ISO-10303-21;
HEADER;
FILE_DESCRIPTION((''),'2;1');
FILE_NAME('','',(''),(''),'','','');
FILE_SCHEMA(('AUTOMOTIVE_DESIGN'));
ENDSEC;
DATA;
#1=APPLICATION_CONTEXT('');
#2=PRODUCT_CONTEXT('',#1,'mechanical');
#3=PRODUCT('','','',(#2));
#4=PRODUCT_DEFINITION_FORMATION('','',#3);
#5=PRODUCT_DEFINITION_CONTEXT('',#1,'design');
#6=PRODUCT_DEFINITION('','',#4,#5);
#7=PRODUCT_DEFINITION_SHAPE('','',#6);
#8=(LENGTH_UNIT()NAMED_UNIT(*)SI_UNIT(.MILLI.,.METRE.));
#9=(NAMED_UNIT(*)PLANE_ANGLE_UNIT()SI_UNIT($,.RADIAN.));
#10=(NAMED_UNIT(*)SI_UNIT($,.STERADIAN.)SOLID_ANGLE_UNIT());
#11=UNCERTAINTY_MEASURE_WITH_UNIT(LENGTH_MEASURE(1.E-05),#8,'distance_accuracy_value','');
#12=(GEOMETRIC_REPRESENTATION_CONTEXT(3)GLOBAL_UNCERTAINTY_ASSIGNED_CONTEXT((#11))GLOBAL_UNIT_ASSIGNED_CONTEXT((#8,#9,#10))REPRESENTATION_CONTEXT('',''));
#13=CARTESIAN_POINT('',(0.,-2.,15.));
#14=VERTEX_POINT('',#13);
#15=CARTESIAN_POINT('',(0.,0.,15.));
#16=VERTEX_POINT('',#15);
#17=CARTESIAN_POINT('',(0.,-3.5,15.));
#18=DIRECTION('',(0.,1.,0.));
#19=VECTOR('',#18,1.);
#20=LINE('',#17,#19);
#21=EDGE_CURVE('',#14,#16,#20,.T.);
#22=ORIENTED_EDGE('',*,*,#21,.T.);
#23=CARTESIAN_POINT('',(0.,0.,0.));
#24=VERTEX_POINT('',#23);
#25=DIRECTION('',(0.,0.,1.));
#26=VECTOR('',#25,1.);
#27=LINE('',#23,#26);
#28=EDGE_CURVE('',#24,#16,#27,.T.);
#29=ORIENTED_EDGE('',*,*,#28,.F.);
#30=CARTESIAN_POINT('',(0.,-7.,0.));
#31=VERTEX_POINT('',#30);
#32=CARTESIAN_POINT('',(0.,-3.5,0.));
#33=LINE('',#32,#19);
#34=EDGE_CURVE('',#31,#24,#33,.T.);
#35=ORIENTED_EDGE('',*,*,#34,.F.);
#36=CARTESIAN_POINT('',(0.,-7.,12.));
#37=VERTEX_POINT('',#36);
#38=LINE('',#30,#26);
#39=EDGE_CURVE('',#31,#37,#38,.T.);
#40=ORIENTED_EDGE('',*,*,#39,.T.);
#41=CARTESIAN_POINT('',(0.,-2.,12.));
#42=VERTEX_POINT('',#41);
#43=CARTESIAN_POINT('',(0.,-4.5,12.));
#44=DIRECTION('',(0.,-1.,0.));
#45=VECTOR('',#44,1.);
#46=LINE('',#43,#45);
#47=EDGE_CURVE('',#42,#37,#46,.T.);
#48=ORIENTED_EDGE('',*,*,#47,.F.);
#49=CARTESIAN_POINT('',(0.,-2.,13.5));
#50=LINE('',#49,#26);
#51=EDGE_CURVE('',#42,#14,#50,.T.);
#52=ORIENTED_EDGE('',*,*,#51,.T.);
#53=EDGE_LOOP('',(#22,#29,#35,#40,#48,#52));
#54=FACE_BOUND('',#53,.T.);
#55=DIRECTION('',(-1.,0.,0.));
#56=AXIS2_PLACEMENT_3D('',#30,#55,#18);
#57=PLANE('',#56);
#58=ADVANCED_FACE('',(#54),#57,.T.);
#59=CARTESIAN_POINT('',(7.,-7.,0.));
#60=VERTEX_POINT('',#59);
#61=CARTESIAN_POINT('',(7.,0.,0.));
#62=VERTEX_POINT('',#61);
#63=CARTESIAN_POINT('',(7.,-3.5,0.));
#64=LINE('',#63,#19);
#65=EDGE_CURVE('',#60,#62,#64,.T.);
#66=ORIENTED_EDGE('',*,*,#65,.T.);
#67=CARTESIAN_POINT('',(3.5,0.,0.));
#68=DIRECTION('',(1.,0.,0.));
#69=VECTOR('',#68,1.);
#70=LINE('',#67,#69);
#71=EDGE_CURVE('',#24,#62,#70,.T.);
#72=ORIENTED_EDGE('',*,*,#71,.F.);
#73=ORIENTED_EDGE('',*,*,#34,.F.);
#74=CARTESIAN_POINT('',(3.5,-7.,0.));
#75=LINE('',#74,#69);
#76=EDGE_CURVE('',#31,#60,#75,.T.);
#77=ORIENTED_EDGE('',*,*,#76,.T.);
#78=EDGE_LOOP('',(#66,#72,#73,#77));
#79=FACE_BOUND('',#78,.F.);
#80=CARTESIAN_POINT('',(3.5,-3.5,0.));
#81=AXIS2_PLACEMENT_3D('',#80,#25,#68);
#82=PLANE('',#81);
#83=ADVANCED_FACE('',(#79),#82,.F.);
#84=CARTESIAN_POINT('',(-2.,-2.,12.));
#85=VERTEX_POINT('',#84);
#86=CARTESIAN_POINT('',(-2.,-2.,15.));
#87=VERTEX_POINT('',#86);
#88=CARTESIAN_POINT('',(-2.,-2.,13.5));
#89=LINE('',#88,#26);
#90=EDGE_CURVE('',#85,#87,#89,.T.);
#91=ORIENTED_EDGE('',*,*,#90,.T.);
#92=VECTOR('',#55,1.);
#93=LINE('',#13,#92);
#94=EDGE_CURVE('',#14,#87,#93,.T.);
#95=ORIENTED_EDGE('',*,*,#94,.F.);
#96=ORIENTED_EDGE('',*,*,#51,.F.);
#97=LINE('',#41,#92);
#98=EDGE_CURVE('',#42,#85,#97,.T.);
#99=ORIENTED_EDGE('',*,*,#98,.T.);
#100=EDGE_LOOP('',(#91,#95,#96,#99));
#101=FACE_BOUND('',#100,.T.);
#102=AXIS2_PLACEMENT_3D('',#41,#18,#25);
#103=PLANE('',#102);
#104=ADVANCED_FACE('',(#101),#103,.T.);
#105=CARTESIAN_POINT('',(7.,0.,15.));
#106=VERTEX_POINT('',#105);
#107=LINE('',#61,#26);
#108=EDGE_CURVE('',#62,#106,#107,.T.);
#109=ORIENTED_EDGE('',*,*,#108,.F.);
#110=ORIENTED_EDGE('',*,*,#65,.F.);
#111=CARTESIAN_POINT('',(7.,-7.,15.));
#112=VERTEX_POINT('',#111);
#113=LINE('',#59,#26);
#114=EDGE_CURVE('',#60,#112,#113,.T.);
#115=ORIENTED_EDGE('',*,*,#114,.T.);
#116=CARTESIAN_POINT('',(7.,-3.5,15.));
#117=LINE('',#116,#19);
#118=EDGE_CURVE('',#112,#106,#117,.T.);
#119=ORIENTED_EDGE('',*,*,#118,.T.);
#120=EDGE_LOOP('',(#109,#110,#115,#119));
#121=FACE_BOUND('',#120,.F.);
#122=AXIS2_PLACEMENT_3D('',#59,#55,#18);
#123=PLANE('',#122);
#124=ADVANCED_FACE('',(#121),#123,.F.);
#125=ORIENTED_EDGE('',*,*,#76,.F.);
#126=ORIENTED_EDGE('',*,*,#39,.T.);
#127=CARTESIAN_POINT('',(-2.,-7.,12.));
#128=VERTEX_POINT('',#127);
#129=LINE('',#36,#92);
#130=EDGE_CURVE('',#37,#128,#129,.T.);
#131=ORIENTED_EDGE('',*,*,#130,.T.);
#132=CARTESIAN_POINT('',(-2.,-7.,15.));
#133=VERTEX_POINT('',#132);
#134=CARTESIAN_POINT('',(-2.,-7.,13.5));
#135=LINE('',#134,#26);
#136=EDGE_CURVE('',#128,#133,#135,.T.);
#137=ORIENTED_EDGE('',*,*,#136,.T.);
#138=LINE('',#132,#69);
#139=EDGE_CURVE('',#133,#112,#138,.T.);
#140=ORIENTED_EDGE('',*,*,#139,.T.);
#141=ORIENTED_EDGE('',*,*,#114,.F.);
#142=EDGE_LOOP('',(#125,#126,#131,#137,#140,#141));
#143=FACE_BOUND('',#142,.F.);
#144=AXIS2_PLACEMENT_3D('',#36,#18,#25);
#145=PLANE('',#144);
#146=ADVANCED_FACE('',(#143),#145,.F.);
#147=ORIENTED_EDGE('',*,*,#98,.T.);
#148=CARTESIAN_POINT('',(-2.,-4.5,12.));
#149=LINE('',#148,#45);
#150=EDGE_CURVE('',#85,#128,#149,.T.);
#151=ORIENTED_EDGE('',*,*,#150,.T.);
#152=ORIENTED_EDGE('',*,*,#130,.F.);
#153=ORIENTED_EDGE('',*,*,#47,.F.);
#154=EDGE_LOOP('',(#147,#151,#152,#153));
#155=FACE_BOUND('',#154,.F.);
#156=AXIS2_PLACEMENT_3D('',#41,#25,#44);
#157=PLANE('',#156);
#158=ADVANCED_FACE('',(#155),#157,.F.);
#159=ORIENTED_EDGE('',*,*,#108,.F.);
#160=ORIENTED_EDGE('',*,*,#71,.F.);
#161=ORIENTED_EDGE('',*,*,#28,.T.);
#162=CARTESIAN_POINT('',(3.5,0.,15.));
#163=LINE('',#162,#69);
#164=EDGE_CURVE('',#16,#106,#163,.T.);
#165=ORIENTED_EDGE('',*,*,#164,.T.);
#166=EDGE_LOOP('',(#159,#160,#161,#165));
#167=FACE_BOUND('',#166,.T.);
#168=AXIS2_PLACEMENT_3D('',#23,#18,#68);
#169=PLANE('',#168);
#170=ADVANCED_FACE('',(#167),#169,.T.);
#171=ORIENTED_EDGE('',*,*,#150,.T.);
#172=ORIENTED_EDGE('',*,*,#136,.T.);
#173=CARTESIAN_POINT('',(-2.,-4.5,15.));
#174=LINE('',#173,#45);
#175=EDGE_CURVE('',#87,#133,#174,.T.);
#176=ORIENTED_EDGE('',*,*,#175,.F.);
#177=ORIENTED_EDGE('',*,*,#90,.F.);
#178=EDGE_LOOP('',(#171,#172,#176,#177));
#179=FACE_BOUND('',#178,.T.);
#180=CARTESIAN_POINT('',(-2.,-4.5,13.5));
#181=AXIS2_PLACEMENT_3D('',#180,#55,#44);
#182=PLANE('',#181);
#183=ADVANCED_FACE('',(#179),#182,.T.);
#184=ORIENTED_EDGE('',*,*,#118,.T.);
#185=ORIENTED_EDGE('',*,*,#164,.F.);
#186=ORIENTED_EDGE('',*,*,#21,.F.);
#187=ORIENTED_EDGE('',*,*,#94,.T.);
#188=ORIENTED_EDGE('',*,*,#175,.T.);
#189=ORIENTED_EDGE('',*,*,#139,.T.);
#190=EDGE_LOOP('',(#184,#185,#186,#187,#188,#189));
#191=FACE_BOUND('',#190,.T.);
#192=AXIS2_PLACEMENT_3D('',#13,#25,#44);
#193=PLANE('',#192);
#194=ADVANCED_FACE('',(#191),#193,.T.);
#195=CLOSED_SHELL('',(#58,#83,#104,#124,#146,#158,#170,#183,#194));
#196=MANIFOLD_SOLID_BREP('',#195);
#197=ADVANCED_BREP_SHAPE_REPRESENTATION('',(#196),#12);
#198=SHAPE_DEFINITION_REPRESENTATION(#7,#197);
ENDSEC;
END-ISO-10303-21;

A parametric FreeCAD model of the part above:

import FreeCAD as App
import Part
import Sketcher

V = App.Vector
Q = App.Units.Quantity


def add_polygon(sketch, points):
    """Adds a closed chain of lines whose ends are joined by coincident constraints."""
    first, n = sketch.GeometryCount, len(points)
    for a, b in zip(points, points[1:] + points[:1]):
        sketch.addGeometry(Part.LineSegment(App.Vector(*a, 0), App.Vector(*b, 0)), False)
    for i in range(n):
        sketch.addConstraint(Sketcher.Constraint("Coincident", first + i, 2, first + (i + 1) % n, 1))

doc = App.newDocument("Part")
body = doc.addObject("PartDesign::Body", "Body")

# Sketch on XY plane
sketch1 = body.newObject("Sketcher::SketchObject", "Sketch")
sketch1.AttachmentSupport = (doc.getObject("XY_Plane"), [""])
sketch1.MapMode = "FlatFace"
add_polygon(sketch1, [(0, 0), (0, -7), (7, -7), (7, 0)])  # lines 0-3
sketch1.addConstraint([
    Sketcher.Constraint("Vertical", 0),
    Sketcher.Constraint("Horizontal", 1),
    Sketcher.Constraint("Vertical", 2),
    Sketcher.Constraint("Horizontal", 3),
    Sketcher.Constraint("Coincident", 3, 2, -1, 1),
    Sketcher.Constraint("Equal", 3, 0),
    Sketcher.Constraint("DistanceX", 1, 1, 1, 2, Q("7 mm")),
])
pad1 = body.newObject("PartDesign::Pad", "Pad")
pad1.Profile = sketch1
pad1.Length = 15

# Sketch on YZ plane
sketch2 = body.newObject("Sketcher::SketchObject", "Sketch001")
sketch2.AttachmentSupport = (doc.getObject("YZ_Plane"), [""])
sketch2.MapMode = "FlatFace"
add_polygon(sketch2, [(-2, 15), (-2, 12), (-7, 12), (-7, 15)])  # lines 0-3
sketch2.addConstraint([
    Sketcher.Constraint("Vertical", 0),
    Sketcher.Constraint("Horizontal", 1),
    Sketcher.Constraint("Vertical", 2),
    Sketcher.Constraint("Horizontal", 3),
    Sketcher.Constraint("DistanceX", 1, 2, 1, 1, Q("5 mm")),
    Sketcher.Constraint("DistanceY", 0, 2, 0, 1, Q("3 mm")),
    Sketcher.Constraint("DistanceX", 0, 2, -1, 1, Q("2 mm")),
    Sketcher.Constraint("DistanceY", -1, 1, 0, 2, Q("12 mm")),
])
pad2 = body.newObject("PartDesign::Pad", "Pad001")
pad2.Profile = sketch2
pad2.Length = 2
pad2.Reversed = True

doc.recompute()
